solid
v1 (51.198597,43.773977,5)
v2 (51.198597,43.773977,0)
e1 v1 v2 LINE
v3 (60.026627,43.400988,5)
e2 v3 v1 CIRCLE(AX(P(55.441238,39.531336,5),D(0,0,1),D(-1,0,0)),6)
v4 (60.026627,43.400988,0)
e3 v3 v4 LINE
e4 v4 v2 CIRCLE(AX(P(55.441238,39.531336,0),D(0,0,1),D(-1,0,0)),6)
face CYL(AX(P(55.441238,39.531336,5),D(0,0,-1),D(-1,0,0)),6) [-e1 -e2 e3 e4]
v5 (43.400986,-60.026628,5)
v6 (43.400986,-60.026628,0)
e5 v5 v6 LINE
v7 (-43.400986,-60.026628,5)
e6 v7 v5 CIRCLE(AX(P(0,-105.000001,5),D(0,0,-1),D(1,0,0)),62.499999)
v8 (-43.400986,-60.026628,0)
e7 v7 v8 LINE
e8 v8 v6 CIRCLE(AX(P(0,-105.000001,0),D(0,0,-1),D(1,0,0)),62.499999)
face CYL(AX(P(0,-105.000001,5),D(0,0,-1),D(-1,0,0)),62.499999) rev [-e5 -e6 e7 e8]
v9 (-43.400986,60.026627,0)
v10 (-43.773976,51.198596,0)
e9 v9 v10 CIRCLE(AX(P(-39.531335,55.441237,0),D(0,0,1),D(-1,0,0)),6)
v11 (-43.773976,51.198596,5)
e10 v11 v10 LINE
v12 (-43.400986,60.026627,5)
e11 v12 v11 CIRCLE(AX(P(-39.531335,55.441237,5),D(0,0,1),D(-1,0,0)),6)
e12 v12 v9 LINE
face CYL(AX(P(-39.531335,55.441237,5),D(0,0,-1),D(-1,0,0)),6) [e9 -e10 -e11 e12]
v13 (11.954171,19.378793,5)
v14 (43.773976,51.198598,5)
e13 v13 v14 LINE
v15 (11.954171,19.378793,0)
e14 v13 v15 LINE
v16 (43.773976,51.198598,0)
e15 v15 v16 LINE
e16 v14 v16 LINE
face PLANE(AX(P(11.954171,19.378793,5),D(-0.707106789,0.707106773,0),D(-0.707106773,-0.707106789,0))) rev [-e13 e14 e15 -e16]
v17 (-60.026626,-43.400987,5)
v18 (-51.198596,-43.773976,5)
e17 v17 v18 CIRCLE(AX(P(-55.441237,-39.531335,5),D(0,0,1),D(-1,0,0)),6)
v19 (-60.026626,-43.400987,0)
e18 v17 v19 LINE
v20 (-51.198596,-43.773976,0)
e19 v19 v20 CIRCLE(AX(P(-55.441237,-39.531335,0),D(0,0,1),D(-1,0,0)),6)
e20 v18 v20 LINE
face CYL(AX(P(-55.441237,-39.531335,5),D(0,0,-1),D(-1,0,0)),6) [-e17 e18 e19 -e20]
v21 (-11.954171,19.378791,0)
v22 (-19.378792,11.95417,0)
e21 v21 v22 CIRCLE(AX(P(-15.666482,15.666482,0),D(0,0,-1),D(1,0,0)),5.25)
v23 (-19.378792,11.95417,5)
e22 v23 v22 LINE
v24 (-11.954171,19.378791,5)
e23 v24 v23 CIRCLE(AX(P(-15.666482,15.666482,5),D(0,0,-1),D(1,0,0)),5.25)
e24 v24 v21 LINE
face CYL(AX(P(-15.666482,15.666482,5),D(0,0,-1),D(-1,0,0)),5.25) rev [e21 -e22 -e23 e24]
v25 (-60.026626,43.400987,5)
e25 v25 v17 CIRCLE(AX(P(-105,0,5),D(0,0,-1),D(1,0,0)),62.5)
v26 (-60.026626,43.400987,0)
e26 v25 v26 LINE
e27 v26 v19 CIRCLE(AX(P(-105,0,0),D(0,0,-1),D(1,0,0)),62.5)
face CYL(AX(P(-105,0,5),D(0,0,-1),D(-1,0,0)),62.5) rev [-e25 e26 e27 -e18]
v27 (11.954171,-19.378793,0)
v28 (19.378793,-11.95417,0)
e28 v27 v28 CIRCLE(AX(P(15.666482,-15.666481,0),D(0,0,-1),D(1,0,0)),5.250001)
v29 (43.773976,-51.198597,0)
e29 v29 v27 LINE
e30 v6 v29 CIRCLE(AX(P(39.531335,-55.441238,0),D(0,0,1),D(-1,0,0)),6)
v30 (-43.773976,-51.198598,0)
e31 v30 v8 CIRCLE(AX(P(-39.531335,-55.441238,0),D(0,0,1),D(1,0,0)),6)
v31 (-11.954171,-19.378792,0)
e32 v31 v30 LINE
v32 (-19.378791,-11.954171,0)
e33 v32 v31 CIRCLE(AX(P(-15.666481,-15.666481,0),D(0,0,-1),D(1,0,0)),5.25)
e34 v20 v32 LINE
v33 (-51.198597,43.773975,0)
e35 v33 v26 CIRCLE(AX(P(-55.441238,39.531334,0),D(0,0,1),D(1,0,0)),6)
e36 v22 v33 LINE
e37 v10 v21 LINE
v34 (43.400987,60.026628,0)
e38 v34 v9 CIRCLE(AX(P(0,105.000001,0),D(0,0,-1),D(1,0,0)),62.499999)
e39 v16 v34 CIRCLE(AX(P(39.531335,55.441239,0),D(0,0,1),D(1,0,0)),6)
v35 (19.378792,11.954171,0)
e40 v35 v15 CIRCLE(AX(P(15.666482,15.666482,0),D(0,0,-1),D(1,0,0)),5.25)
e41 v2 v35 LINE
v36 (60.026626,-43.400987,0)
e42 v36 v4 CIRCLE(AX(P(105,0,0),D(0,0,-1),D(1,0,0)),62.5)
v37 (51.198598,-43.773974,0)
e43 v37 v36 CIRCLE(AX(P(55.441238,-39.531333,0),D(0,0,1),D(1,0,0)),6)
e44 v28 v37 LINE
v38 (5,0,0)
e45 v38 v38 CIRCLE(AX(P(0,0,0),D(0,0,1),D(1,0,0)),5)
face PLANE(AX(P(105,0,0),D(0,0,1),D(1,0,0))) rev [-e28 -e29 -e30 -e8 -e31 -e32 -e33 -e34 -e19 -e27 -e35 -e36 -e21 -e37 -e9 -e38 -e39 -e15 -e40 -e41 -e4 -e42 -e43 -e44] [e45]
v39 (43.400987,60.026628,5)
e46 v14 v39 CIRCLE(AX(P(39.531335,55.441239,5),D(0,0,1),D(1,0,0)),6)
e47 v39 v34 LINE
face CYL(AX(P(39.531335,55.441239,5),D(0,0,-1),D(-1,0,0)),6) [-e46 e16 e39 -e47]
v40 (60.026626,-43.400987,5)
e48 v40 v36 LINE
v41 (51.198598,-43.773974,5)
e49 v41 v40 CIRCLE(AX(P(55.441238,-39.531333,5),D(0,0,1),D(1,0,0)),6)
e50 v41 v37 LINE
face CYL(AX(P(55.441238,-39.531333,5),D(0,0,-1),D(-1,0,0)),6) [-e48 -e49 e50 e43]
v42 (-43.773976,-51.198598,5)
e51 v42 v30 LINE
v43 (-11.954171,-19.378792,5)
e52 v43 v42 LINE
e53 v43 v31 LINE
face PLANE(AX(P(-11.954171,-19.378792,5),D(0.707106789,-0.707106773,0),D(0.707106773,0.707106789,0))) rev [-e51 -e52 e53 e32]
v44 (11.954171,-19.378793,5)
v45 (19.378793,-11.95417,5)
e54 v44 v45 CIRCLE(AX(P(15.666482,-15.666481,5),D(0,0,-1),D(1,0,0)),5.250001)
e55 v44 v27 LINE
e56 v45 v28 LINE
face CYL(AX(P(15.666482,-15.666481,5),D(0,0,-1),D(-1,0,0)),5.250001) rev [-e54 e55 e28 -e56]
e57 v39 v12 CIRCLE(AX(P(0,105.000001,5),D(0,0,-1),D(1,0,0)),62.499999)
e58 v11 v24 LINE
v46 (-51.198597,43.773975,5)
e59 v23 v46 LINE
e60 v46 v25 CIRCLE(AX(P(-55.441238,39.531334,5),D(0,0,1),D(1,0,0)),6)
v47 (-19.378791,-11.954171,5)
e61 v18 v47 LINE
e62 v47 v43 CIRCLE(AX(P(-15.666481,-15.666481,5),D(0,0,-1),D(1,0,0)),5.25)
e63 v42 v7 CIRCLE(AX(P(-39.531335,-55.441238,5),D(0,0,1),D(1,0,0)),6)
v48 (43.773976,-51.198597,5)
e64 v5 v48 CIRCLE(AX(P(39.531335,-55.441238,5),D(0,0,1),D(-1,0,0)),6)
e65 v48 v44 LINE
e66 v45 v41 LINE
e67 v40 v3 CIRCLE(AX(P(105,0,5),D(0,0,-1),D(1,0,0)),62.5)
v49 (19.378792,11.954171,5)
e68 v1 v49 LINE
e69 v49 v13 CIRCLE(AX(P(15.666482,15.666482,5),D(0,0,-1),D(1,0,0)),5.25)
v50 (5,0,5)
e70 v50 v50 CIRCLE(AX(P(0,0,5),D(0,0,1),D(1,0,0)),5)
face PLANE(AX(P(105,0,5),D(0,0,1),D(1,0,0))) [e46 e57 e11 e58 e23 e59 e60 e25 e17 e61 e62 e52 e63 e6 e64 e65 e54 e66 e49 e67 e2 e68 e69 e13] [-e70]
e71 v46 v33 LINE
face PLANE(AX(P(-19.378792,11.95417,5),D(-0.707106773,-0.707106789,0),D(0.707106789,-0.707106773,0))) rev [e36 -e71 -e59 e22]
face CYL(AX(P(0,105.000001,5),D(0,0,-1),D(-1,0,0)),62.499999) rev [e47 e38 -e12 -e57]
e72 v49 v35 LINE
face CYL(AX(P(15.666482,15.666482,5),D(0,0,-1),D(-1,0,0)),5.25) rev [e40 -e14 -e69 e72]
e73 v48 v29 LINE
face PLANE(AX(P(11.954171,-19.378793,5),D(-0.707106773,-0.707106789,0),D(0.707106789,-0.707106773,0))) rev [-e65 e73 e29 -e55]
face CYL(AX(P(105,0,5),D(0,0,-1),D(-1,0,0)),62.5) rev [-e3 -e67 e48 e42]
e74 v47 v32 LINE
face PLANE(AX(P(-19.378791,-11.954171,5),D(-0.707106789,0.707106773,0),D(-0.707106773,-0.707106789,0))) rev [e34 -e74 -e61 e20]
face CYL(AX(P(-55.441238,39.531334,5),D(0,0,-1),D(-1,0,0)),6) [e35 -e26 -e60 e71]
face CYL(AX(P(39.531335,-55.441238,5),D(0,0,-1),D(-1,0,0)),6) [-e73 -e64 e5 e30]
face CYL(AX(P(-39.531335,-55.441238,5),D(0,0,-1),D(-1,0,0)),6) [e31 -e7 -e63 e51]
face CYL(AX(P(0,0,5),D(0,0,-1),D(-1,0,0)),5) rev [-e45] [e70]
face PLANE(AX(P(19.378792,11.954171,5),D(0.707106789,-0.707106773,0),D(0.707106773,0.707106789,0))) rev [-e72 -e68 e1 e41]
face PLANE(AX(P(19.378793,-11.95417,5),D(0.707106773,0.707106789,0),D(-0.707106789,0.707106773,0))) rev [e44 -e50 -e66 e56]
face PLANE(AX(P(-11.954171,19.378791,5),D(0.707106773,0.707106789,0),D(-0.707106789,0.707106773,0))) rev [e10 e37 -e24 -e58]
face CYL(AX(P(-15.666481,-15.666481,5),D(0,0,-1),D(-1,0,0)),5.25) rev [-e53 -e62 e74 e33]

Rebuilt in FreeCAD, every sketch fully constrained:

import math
import FreeCAD as App
import Part
import Sketcher

V = App.Vector

doc = App.newDocument("Part")
body = doc.addObject("PartDesign::Body", "Body")

# Sketch on XY plane
sketch1 = body.newObject("Sketcher::SketchObject", "Sketch")
sketch1.AttachmentSupport = (doc.getObject("XY_Plane"), [""])
sketch1.MapMode = "FlatFace"
sketch1.addGeometry([
    Part.LineSegment(V(12, 19, 0), V(44, 51, 0)),  # 0
    Part.ArcOfCircle(Part.Circle(V(40, 55, 0), V(0, 0, 1), 6), math.radians(-45), math.radians(50)),  # 1
    Part.ArcOfCircle(Part.Circle(V(0, 105, 0), V(0, 0, 1), 62), math.radians(-134), math.radians(-46)),  # 2
    Part.ArcOfCircle(Part.Circle(V(-40, 55, 0), V(0, 0, 1), 6), math.radians(130), math.radians(225)),  # 3
    Part.LineSegment(V(-44, 51, 0), V(-12, 19, 0)),  # 4
    Part.ArcOfCircle(Part.Circle(V(-16, 16, 0), V(0, 0, 1), 5), math.radians(-135), math.radians(45)),  # 5
    Part.LineSegment(V(-19, 12, 0), V(-51, 44, 0)),  # 6
    Part.ArcOfCircle(Part.Circle(V(-55, 40, 0), V(0, 0, 1), 6), math.radians(45), math.radians(140)),  # 7
    Part.ArcOfCircle(Part.Circle(V(-105, 0, 0), V(0, 0, 1), 62), math.radians(-44), math.radians(44)),  # 8
    Part.ArcOfCircle(Part.Circle(V(-55, -40, 0), V(0, 0, 1), 6), math.radians(-140), math.radians(-45)),  # 9
    Part.LineSegment(V(-51, -44, 0), V(-19, -12, 0)),  # 10
    Part.ArcOfCircle(Part.Circle(V(-16, -16, 0), V(0, 0, 1), 5), math.radians(-45), math.radians(135)),  # 11
    Part.LineSegment(V(-12, -19, 0), V(-44, -51, 0)),  # 12
    Part.ArcOfCircle(Part.Circle(V(-40, -55, 0), V(0, 0, 1), 6), math.radians(135), math.radians(230)),  # 13
    Part.ArcOfCircle(Part.Circle(V(0, -105, 0), V(0, 0, 1), 62), math.radians(46), math.radians(134)),  # 14
    Part.ArcOfCircle(Part.Circle(V(40, -55, 0), V(0, 0, 1), 6), math.radians(-50), math.radians(45)),  # 15
    Part.LineSegment(V(44, -51, 0), V(12, -19, 0)),  # 16
    Part.ArcOfCircle(Part.Circle(V(16, -16, 0), V(0, 0, 1), 5), math.radians(45), math.radians(225)),  # 17
    Part.LineSegment(V(19, -12, 0), V(51, -44, 0)),  # 18
    Part.ArcOfCircle(Part.Circle(V(55, -40, 0), V(0, 0, 1), 6), math.radians(-135), math.radians(-40)),  # 19
    Part.ArcOfCircle(Part.Circle(V(105, 0, 0), V(0, 0, 1), 62), math.radians(136), math.radians(224)),  # 20
    Part.ArcOfCircle(Part.Circle(V(55, 40, 0), V(0, 0, 1), 6), math.radians(40), math.radians(135)),  # 21
    Part.LineSegment(V(51, 44, 0), V(19, 12, 0)),  # 22
    Part.ArcOfCircle(Part.Circle(V(16, 16, 0), V(0, 0, 1), 5), math.radians(135), math.radians(315)),  # 23
    Part.Circle(V(0, 0, 0), V(0, 0, 1), 5),  # 24
], False)
sketch1.addConstraint([
    Sketcher.Constraint("Tangent", 0, 2, 1, 1),
    Sketcher.Constraint("Coincident", 1, 2, 2, 2),
    Sketcher.Constraint("Coincident", 2, 1, 3, 1),
    Sketcher.Constraint("Tangent", 3, 2, 4, 1),
    Sketcher.Constraint("Tangent", 4, 2, 5, 2),
    Sketcher.Constraint("Tangent", 5, 1, 6, 1),
    Sketcher.Constraint("Tangent", 6, 2, 7, 1),
    Sketcher.Constraint("Coincident", 7, 2, 8, 2),
    Sketcher.Constraint("Coincident", 8, 1, 9, 1),
    Sketcher.Constraint("Tangent", 9, 2, 10, 1),
    Sketcher.Constraint("Tangent", 10, 2, 11, 2),
    Sketcher.Constraint("Tangent", 11, 1, 12, 1),
    Sketcher.Constraint("Tangent", 12, 2, 13, 1),
    Sketcher.Constraint("Coincident", 13, 2, 14, 2),
    Sketcher.Constraint("Coincident", 14, 1, 15, 1),
    Sketcher.Constraint("Tangent", 15, 2, 16, 1),
    Sketcher.Constraint("Tangent", 16, 2, 17, 2),
    Sketcher.Constraint("Tangent", 17, 1, 18, 1),
    Sketcher.Constraint("Tangent", 18, 2, 19, 1),
    Sketcher.Constraint("Coincident", 19, 2, 20, 2),
    Sketcher.Constraint("Coincident", 20, 1, 21, 1),
    Sketcher.Constraint("Tangent", 21, 2, 22, 1),
    Sketcher.Constraint("Tangent", 22, 2, 23, 2),
    Sketcher.Constraint("Tangent", 23, 1, 0, 1),
    Sketcher.Constraint("Coincident", 24, 3, -1, 1),
    Sketcher.Constraint("Equal", 1, 3),
    Sketcher.Constraint("Equal", 3, 7),
    Sketcher.Constraint("Equal", 2, 8),
    Sketcher.Constraint("Equal", 7, 9),
    Sketcher.Constraint("Equal", 5, 11),
    Sketcher.Constraint("Equal", 9, 13),
    Sketcher.Constraint("Equal", 8, 14),
    Sketcher.Constraint("Equal", 13, 15),
    Sketcher.Constraint("Equal", 11, 17),
    Sketcher.Constraint("Equal", 15, 19),
    Sketcher.Constraint("Equal", 14, 20),
    Sketcher.Constraint("Equal", 19, 21),
    Sketcher.Constraint("Equal", 17, 23),
    Sketcher.Constraint("Symmetric", 1, 3, 13, 3, -1, 1),
    Sketcher.Constraint("Symmetric", 2, 3, 14, 3, -1, 1),
    Sketcher.Constraint("Symmetric", 3, 3, 15, 3, -1, 1),
    Sketcher.Constraint("Symmetric", 5, 3, 17, 3, -1, 1),
    Sketcher.Constraint("Symmetric", 7, 3, 19, 3, -1, 1),
    Sketcher.Constraint("Symmetric", 8, 3, 20, 3, -1, 1),
    Sketcher.Constraint("Symmetric", 9, 3, 21, 3, -1, 1),
    Sketcher.Constraint("Symmetric", 11, 3, 23, 3, -1, 1),
    Sketcher.Constraint("Symmetric", 1, 3, 3, 3, -2),
    Sketcher.Constraint("Symmetric", 11, 3, 17, 3, -2),
    Sketcher.Constraint("Symmetric", 9, 3, 19, 3, -2),
    Sketcher.Constraint("PointOnObject", 2, 3, -2),
    Sketcher.Constraint("PointOnObject", 8, 3, -1),
    Sketcher.Constraint("Perpendicular", 0, 4),
    Sketcher.Constraint("Parallel", 4, 6),
    Sketcher.Constraint("Equal", 4, 6),
    Sketcher.Constraint("Diameter", 24, 10.0),
    Sketcher.Constraint("Radius", 1, 6.0),
    Sketcher.Constraint("Radius", 2, 62.499999),
    Sketcher.Constraint("Radius", 5, 5.25),
    Sketcher.Constraint("Distance", 0, 45.0),
    Sketcher.Constraint("DistanceY", -1, 1, 2, 3, 105.000001),
    Sketcher.Constraint("DistanceX", 8, 3, -1, 1, 105.0),
    Sketcher.Constraint("DistanceY", -1, 1, 0, 2, 51.198598),
    Sketcher.Constraint("DistanceX", 11, 3, -1, 1, 15.666481),
])
pad1 = body.newObject("PartDesign::Pad", "Pad")
pad1.Profile = sketch1
pad1.Length = 5

doc.recompute()
